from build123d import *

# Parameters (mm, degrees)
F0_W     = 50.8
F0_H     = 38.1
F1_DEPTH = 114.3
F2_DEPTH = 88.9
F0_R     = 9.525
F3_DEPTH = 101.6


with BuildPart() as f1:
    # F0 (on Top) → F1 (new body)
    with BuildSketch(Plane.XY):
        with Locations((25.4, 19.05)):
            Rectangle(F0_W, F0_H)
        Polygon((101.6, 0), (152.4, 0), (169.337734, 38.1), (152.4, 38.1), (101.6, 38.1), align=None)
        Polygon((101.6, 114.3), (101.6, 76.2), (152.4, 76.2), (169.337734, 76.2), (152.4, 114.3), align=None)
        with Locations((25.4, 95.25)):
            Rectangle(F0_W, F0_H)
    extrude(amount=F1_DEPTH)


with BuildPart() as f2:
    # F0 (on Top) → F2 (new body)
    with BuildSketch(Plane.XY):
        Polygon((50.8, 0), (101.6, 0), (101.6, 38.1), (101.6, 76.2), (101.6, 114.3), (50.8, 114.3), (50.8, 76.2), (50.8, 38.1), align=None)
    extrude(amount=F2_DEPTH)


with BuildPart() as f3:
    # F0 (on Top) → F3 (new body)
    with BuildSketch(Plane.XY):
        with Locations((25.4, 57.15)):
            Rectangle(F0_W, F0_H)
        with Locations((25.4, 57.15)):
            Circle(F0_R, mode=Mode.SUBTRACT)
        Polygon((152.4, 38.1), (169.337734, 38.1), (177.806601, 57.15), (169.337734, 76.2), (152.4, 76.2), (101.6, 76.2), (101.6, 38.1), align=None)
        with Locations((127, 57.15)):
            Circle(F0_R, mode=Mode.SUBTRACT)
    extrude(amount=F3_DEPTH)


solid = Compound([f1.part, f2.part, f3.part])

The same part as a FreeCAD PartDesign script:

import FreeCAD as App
import Part
import Sketcher

V = App.Vector
Q = App.Units.Quantity

doc = App.newDocument("Part")
body = doc.addObject("PartDesign::Body", "Body")
body.AllowCompound = True

sketch1 = body.newObject("Sketcher::SketchObject", "Sketch")
sketch1.AttachmentSupport = (doc.getObject("XY_Plane"), [""])
sketch1.MapMode = "FlatFace"
sketch1.addGeometry([
    Part.LineSegment(V(0, 38, 0), V(0, 0, 0)),
    Part.LineSegment(V(0, 0, 0), V(51, 0, 0)),
    Part.LineSegment(V(51, 0, 0), V(51, 38, 0)),
    Part.LineSegment(V(51, 38, 0), V(0, 38, 0)),
    Part.LineSegment(V(102, 0, 0), V(152, 0, 0)),
    Part.LineSegment(V(152, 0, 0), V(169, 38, 0)),
    Part.LineSegment(V(169, 38, 0), V(102, 38, 0)),
    Part.LineSegment(V(102, 38, 0), V(102, 0, 0)),
    Part.LineSegment(V(102, 114, 0), V(102, 76, 0)),
    Part.LineSegment(V(102, 76, 0), V(169, 76, 0)),
    Part.LineSegment(V(169, 76, 0), V(152, 114, 0)),
    Part.LineSegment(V(152, 114, 0), V(102, 114, 0)),
    Part.LineSegment(V(0, 114, 0), V(0, 76, 0)),
    Part.LineSegment(V(0, 76, 0), V(51, 76, 0)),
    Part.LineSegment(V(51, 76, 0), V(51, 114, 0)),
    Part.LineSegment(V(51, 114, 0), V(0, 114, 0)),
], False)
sketch1.addConstraint([
    Sketcher.Constraint("Coincident", 0, 2, 1, 1),
    Sketcher.Constraint("Coincident", 1, 2, 2, 1),
    Sketcher.Constraint("Coincident", 2, 2, 3, 1),
    Sketcher.Constraint("Coincident", 3, 2, 0, 1),
    Sketcher.Constraint("Coincident", 4, 2, 5, 1),
    Sketcher.Constraint("Coincident", 5, 2, 6, 1),
    Sketcher.Constraint("Coincident", 6, 2, 7, 1),
    Sketcher.Constraint("Coincident", 7, 2, 4, 1),
    Sketcher.Constraint("Coincident", 8, 2, 9, 1),
    Sketcher.Constraint("Coincident", 9, 2, 10, 1),
    Sketcher.Constraint("Coincident", 10, 2, 11, 1),
    Sketcher.Constraint("Coincident", 11, 2, 8, 1),
    Sketcher.Constraint("Coincident", 12, 2, 13, 1),
    Sketcher.Constraint("Coincident", 13, 2, 14, 1),
    Sketcher.Constraint("Coincident", 14, 2, 15, 1),
    Sketcher.Constraint("Coincident", 15, 2, 12, 1),
    Sketcher.Constraint("Vertical", 0),
    Sketcher.Constraint("Horizontal", 1),
    Sketcher.Constraint("Vertical", 2),
    Sketcher.Constraint("Horizontal", 3),
    Sketcher.Constraint("Horizontal", 4),
    Sketcher.Constraint("Horizontal", 6),
    Sketcher.Constraint("Vertical", 7),
    Sketcher.Constraint("Vertical", 8),
    Sketcher.Constraint("Horizontal", 9),
    Sketcher.Constraint("Horizontal", 11),
    Sketcher.Constraint("Vertical", 12),
    Sketcher.Constraint("Horizontal", 13),
    Sketcher.Constraint("Vertical", 14),
    Sketcher.Constraint("Horizontal", 15),
    Sketcher.Constraint("Coincident", 0, 2, -1, 1),
    Sketcher.Constraint("PointOnObject", 4, 2, -1),
    Sketcher.Constraint("PointOnObject", 12, 2, -2),
    Sketcher.Constraint("Horizontal", 3, 2, 5, 2),
    Sketcher.Constraint("Horizontal", 9, 2, 12, 2),
    Sketcher.Constraint("Horizontal", 11, 2, 14, 2),
    Sketcher.Constraint("Vertical", 7, 2, 8, 2),
    Sketcher.Constraint("Vertical", 5, 2, 9, 2),
    Sketcher.Constraint("Vertical", 4, 2, 10, 2),
    Sketcher.Constraint("Vertical", 2, 2, 13, 2),
    Sketcher.Constraint("Equal", 3, 4),
    Sketcher.Constraint("Equal", 7, 8),
    Sketcher.Constraint("DistanceX", 1, 1, 1, 2, Q("2 in")),
    Sketcher.Constraint("DistanceY", 0, 2, 0, 1, Q("1.5 in")),
    Sketcher.Constraint("DistanceX", -1, 1, 4, 2, Q("6 in")),
    Sketcher.Constraint("DistanceY", -1, 1, 8, 2, Q("3 in")),
    Sketcher.Constraint("DistanceX", 6, 2, 6, 1, Q("67.737734 mm")),
])
pad1 = body.newObject("PartDesign::Pad", "Pad")
pad1.Profile = sketch1
pad1.Length = Q("4.5 in")
body2 = doc.addObject("PartDesign::Body", "Body001")

sketch2 = body2.newObject("Sketcher::SketchObject", "Sketch001")
sketch2.AttachmentSupport = (doc.getObject("XY_Plane001"), [""])
sketch2.MapMode = "FlatFace"
sketch2.addGeometry([
    Part.LineSegment(V(51, 0, 0), V(102, 0, 0)),
    Part.LineSegment(V(102, 0, 0), V(102, 114, 0)),
    Part.LineSegment(V(102, 114, 0), V(51, 114, 0)),
    Part.LineSegment(V(51, 114, 0), V(51, 0, 0)),
], False)
sketch2.addConstraint([
    Sketcher.Constraint("Coincident", 0, 2, 1, 1),
    Sketcher.Constraint("Coincident", 1, 2, 2, 1),
    Sketcher.Constraint("Coincident", 2, 2, 3, 1),
    Sketcher.Constraint("Coincident", 3, 2, 0, 1),
    Sketcher.Constraint("Horizontal", 0),
    Sketcher.Constraint("Vertical", 1),
    Sketcher.Constraint("Horizontal", 2),
    Sketcher.Constraint("Vertical", 3),
    Sketcher.Constraint("PointOnObject", 0, 2, -1),
    Sketcher.Constraint("DistanceX", 0, 1, 0, 2, Q("2 in")),
    Sketcher.Constraint("DistanceY", 1, 1, 1, 2, Q("4.5 in")),
    Sketcher.Constraint("DistanceX", -1, 1, 0, 2, Q("4 in")),
])
pad2 = body2.newObject("PartDesign::Pad", "Pad001")
pad2.Profile = sketch2
pad2.Length = Q("3.5 in")
body3 = doc.addObject("PartDesign::Body", "Body002")
body3.AllowCompound = True

sketch3 = body3.newObject("Sketcher::SketchObject", "Sketch002")
sketch3.AttachmentSupport = (doc.getObject("XY_Plane002"), [""])
sketch3.MapMode = "FlatFace"
sketch3.addGeometry([
    Part.LineSegment(V(0, 76, 0), V(0, 38, 0)),
    Part.LineSegment(V(0, 38, 0), V(51, 38, 0)),
    Part.LineSegment(V(51, 38, 0), V(51, 76, 0)),
    Part.LineSegment(V(51, 76, 0), V(0, 76, 0)),
    Part.Circle(V(25, 57, 0), V(0, 0, 1), 10),
    Part.LineSegment(V(169, 38, 0), V(178, 57, 0)),
    Part.LineSegment(V(178, 57, 0), V(169, 76, 0)),
    Part.LineSegment(V(169, 76, 0), V(102, 76, 0)),
    Part.LineSegment(V(102, 76, 0), V(102, 38, 0)),
    Part.LineSegment(V(102, 38, 0), V(169, 38, 0)),
    Part.Circle(V(127, 57, 0), V(0, 0, 1), 10),
], False)
sketch3.addConstraint([
    Sketcher.Constraint("Coincident", 0, 2, 1, 1),
    Sketcher.Constraint("Coincident", 1, 2, 2, 1),
    Sketcher.Constraint("Coincident", 2, 2, 3, 1),
    Sketcher.Constraint("Coincident", 3, 2, 0, 1),
    Sketcher.Constraint("Coincident", 5, 2, 6, 1),
    Sketcher.Constraint("Coincident", 6, 2, 7, 1),
    Sketcher.Constraint("Coincident", 7, 2, 8, 1),
    Sketcher.Constraint("Coincident", 8, 2, 9, 1),
    Sketcher.Constraint("Coincident", 9, 2, 5, 1),
    Sketcher.Constraint("Vertical", 0),
    Sketcher.Constraint("Horizontal", 1),
    Sketcher.Constraint("Vertical", 2),
    Sketcher.Constraint("Horizontal", 3),
    Sketcher.Constraint("Horizontal", 7),
    Sketcher.Constraint("Vertical", 8),
    Sketcher.Constraint("Horizontal", 9),
    Sketcher.Constraint("Equal", 4, 10),
    Sketcher.Constraint("PointOnObject", 0, 2, -2),
    Sketcher.Constraint("Horizontal", 4, 3, 10, 3),
    Sketcher.Constraint("Horizontal", 10, 3, 5, 2),
    Sketcher.Constraint("Horizontal", 3, 2, 6, 2),
    Sketcher.Constraint("Horizontal", 1, 2, 8, 2),
    Sketcher.Constraint("Vertical", 6, 2, 9, 2),
    Sketcher.Constraint("Equal", 5, 6),
    Sketcher.Constraint("Diameter", 4, Q("0.75 in")),
    Sketcher.Constraint("DistanceX", 1, 1, 1, 2, Q("2 in")),
    Sketcher.Constraint("DistanceY", 0, 2, 0, 1, Q("1.5 in")),
    Sketcher.Constraint("DistanceX", -1, 1, 4, 3, Q("1 in")),
    Sketcher.Constraint("DistanceX", -1, 1, 10, 3, Q("5 in")),
    Sketcher.Constraint("DistanceY", -1, 1, 2, 2, Q("3 in")),
    Sketcher.Constraint("DistanceX", -1, 1, 7, 2, Q("4 in")),
    Sketcher.Constraint("DistanceX", -1, 1, 5, 2, Q("177.806601 mm")),
    Sketcher.Constraint("DistanceX", 7, 2, 7, 1, Q("67.737734 mm")),
])
pad3 = body3.newObject("PartDesign::Pad", "Pad002")
pad3.Profile = sketch3
pad3.Length = Q("4 in")

doc.recompute()
